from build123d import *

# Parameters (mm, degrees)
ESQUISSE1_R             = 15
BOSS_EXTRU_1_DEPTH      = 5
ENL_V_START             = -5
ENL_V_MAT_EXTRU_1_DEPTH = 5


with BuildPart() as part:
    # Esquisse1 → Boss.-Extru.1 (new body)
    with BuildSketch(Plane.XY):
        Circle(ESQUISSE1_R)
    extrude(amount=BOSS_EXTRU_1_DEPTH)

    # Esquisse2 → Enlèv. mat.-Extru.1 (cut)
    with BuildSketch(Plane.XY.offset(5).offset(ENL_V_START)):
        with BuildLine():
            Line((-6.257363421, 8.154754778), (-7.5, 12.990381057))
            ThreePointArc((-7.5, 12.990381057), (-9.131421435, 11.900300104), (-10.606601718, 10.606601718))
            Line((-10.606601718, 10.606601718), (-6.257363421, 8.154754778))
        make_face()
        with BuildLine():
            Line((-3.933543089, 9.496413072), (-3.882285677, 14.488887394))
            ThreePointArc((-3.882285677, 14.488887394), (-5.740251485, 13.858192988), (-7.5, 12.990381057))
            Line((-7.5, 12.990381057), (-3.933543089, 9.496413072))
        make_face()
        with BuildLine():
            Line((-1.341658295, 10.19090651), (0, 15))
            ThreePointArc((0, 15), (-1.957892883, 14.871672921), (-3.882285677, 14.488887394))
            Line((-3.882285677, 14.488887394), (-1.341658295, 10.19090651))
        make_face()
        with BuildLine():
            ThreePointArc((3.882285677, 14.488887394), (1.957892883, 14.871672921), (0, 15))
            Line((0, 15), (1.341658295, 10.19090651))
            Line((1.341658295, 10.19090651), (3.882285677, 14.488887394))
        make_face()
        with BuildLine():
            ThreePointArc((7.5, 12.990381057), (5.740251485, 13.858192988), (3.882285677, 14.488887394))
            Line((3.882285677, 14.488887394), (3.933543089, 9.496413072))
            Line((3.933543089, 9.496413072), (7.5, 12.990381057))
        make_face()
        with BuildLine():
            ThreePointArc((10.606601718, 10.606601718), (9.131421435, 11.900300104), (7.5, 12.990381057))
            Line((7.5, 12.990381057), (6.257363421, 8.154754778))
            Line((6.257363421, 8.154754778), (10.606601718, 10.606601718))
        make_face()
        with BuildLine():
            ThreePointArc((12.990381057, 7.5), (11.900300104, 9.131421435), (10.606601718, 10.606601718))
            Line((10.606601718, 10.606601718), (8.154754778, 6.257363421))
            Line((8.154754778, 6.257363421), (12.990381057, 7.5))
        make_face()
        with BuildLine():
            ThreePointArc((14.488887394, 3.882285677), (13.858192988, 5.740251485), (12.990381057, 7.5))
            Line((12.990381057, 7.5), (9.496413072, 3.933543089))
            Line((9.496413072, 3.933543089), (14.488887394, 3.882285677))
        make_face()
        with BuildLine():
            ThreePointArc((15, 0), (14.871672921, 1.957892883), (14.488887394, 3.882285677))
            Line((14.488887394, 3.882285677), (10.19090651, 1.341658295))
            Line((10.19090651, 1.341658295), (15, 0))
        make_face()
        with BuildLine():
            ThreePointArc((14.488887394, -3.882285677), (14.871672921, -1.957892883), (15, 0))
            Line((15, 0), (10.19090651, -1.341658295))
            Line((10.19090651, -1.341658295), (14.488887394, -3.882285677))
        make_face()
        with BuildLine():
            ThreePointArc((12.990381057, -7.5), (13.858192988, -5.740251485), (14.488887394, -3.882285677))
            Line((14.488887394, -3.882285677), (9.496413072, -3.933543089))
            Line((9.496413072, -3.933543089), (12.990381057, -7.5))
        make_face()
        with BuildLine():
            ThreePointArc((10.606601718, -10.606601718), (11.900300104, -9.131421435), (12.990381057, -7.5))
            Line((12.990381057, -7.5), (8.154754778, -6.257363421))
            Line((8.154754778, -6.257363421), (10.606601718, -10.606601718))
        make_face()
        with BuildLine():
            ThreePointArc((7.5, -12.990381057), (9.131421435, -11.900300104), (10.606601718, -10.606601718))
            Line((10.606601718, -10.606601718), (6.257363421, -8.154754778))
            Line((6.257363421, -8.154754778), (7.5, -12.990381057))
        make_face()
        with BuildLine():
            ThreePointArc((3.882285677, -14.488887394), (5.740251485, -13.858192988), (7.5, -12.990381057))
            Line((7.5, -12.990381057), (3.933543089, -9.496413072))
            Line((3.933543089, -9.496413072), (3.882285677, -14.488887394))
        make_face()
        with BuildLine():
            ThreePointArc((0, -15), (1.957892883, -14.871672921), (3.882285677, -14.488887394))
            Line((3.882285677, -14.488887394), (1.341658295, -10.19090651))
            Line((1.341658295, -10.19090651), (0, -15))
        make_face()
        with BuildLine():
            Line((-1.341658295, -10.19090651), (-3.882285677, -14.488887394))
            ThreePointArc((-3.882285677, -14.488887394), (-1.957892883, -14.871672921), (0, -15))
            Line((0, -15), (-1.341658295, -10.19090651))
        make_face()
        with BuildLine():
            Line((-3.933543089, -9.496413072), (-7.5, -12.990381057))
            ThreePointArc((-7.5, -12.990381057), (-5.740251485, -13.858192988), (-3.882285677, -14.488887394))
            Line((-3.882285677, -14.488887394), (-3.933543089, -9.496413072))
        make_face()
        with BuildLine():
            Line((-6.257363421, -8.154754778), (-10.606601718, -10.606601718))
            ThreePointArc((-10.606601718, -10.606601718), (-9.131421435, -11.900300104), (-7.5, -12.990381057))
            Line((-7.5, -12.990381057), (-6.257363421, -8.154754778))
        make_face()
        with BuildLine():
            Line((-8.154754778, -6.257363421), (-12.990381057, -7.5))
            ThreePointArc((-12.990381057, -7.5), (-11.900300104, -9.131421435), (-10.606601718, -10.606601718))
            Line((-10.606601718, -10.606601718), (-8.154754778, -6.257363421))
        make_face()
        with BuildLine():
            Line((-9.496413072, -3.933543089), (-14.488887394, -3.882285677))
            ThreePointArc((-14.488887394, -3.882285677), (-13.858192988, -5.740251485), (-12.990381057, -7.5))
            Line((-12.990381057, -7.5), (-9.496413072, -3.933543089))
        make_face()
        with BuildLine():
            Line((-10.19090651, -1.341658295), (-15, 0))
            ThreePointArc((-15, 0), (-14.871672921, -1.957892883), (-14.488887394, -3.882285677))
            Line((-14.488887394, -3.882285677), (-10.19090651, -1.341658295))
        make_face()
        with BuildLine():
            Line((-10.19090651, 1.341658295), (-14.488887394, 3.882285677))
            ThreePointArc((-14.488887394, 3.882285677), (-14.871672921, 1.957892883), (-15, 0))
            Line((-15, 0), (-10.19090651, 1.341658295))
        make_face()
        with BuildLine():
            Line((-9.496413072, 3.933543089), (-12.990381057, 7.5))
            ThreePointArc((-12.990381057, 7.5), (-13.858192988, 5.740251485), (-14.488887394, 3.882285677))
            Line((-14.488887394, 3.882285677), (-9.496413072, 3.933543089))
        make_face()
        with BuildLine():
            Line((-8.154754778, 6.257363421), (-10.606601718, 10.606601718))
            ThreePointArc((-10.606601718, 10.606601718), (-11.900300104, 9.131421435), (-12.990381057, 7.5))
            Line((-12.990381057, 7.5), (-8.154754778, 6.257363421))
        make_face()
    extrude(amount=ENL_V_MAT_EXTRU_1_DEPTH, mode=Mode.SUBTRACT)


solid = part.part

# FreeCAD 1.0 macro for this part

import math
import FreeCAD as App
import Part
import Sketcher
from FreeCAD import Vector
Q = App.Units.Quantity

doc = App.newDocument("Part")
params = doc.addObject("Spreadsheet::Sheet", "Params")
for row, (alias, value) in enumerate([
    ("sketch1_diameter", "30 mm"),
    ("pad1_length", "5 mm"),
    ("sketch2_radius", "15 mm"),
    ("pocket1_length", "5 mm"),
], start=1):
    params.set(f"A{row}", alias)
    params.set(f"B{row}", "=" + value)
    params.setAlias(f"B{row}", alias)

body = doc.addObject("PartDesign::Body", "Body")

sketch1 = body.newObject("Sketcher::SketchObject", "Sketch")
sketch1.AttachmentSupport = (doc.getObject("XY_Plane"), [""])
sketch1.MapMode = "FlatFace"
sketch1.addGeometry(Part.Circle(Vector(0, 0, 0), Vector(0, 0, 1), 15), False)
sketch1.addConstraint([
    Sketcher.Constraint("Coincident", 0, 3, -1, 1),
    Sketcher.Constraint("Diameter", 0, Q("30 mm")),
])
sketch1.setExpression("Constraints[1]", "Params.sketch1_diameter")
pad1 = body.newObject("PartDesign::Pad", "Pad")
pad1.Profile = sketch1
pad1.setExpression("Length", "Params.pad1_length")

sketch2 = body.newObject("Sketcher::SketchObject", "Sketch001")
sketch2.AttachmentSupport = (doc.getObject("XY_Plane"), [""])
sketch2.MapMode = "FlatFace"
sketch2.addGeometry([
    Part.LineSegment(Vector(-6.3, 8.2, 0), Vector(-7.5, 13, 0)),
    Part.ArcOfCircle(Part.Circle(Vector(0, 0, 0), Vector(0, 0, 1), 15), math.radians(120), math.radians(135)),
    Part.LineSegment(Vector(-10.6, 10.6, 0), Vector(-6.3, 8.2, 0)),
    Part.LineSegment(Vector(-3.9, 9.5, 0), Vector(-3.9, 14.5, 0)),
    Part.ArcOfCircle(Part.Circle(Vector(0, 0, 0), Vector(0, 0, 1), 15), math.radians(105), math.radians(120)),
    Part.LineSegment(Vector(-7.5, 13, 0), Vector(-3.9, 9.5, 0)),
    Part.LineSegment(Vector(-1.3, 10.2, 0), Vector(0, 15, 0)),
    Part.ArcOfCircle(Part.Circle(Vector(0, 0, 0), Vector(0, 0, 1), 15), math.radians(90), math.radians(105)),
    Part.LineSegment(Vector(-3.9, 14.5, 0), Vector(-1.3, 10.2, 0)),
    Part.ArcOfCircle(Part.Circle(Vector(0, 0, 0), Vector(0, 0, 1), 15), math.radians(75), math.radians(90)),
    Part.LineSegment(Vector(0, 15, 0), Vector(1.3, 10.2, 0)),
    Part.LineSegment(Vector(1.3, 10.2, 0), Vector(3.9, 14.5, 0)),
    Part.ArcOfCircle(Part.Circle(Vector(0, 0, 0), Vector(0, 0, 1), 15), math.radians(60), math.radians(75)),
    Part.LineSegment(Vector(3.9, 14.5, 0), Vector(3.9, 9.5, 0)),
    Part.LineSegment(Vector(3.9, 9.5, 0), Vector(7.5, 13, 0)),
    Part.ArcOfCircle(Part.Circle(Vector(0, 0, 0), Vector(0, 0, 1), 15), math.radians(45), math.radians(60)),
    Part.LineSegment(Vector(7.5, 13, 0), Vector(6.3, 8.2, 0)),
    Part.LineSegment(Vector(6.3, 8.2, 0), Vector(10.6, 10.6, 0)),
    Part.ArcOfCircle(Part.Circle(Vector(0, 0, 0), Vector(0, 0, 1), 15), math.radians(30), math.radians(45)),
    Part.LineSegment(Vector(10.6, 10.6, 0), Vector(8.2, 6.3, 0)),
    Part.LineSegment(Vector(8.2, 6.3, 0), Vector(13, 7.5, 0)),
    Part.ArcOfCircle(Part.Circle(Vector(0, 0, 0), Vector(0, 0, 1), 15), math.radians(15), math.radians(30)),
    Part.LineSegment(Vector(13, 7.5, 0), Vector(9.5, 3.9, 0)),
    Part.LineSegment(Vector(9.5, 3.9, 0), Vector(14.5, 3.9, 0)),
    Part.ArcOfCircle(Part.Circle(Vector(0, 0, 0), Vector(0, 0, 1), 15), math.radians(0), math.radians(15)),
    Part.LineSegment(Vector(14.5, 3.9, 0), Vector(10.2, 1.3, 0)),
    Part.LineSegment(Vector(10.2, 1.3, 0), Vector(15, 0, 0)),
    Part.ArcOfCircle(Part.Circle(Vector(0, 0, 0), Vector(0, 0, 1), 15), math.radians(-15), math.radians(0)),
    Part.LineSegment(Vector(15, 0, 0), Vector(10.2, -1.3, 0)),
    Part.LineSegment(Vector(10.2, -1.3, 0), Vector(14.5, -3.9, 0)),
    Part.ArcOfCircle(Part.Circle(Vector(0, 0, 0), Vector(0, 0, 1), 15), math.radians(-30), math.radians(-15)),
    Part.LineSegment(Vector(14.5, -3.9, 0), Vector(9.5, -3.9, 0)),
    Part.LineSegment(Vector(9.5, -3.9, 0), Vector(13, -7.5, 0)),
    Part.ArcOfCircle(Part.Circle(Vector(0, 0, 0), Vector(0, 0, 1), 15), math.radians(-45), math.radians(-30)),
    Part.LineSegment(Vector(13, -7.5, 0), Vector(8.2, -6.3, 0)),
    Part.LineSegment(Vector(8.2, -6.3, 0), Vector(10.6, -10.6, 0)),
    Part.ArcOfCircle(Part.Circle(Vector(0, 0, 0), Vector(0, 0, 1), 15), math.radians(-60), math.radians(-45)),
    Part.LineSegment(Vector(10.6, -10.6, 0), Vector(6.3, -8.2, 0)),
    Part.LineSegment(Vector(6.3, -8.2, 0), Vector(7.5, -13, 0)),
    Part.ArcOfCircle(Part.Circle(Vector(0, 0, 0), Vector(0, 0, 1), 15), math.radians(-75), math.radians(-60)),
    Part.LineSegment(Vector(7.5, -13, 0), Vector(3.9, -9.5, 0)),
    Part.LineSegment(Vector(3.9, -9.5, 0), Vector(3.9, -14.5, 0)),
    Part.ArcOfCircle(Part.Circle(Vector(0, 0, 0), Vector(0, 0, 1), 15), math.radians(-90), math.radians(-75)),
    Part.LineSegment(Vector(3.9, -14.5, 0), Vector(1.3, -10.2, 0)),
    Part.LineSegment(Vector(1.3, -10.2, 0), Vector(0, -15, 0)),
    Part.LineSegment(Vector(-1.3, -10.2, 0), Vector(-3.9, -14.5, 0)),
    Part.ArcOfCircle(Part.Circle(Vector(0, 0, 0), Vector(0, 0, 1), 15), math.radians(-105), math.radians(-90)),
    Part.LineSegment(Vector(0, -15, 0), Vector(-1.3, -10.2, 0)),
    Part.LineSegment(Vector(-3.9, -9.5, 0), Vector(-7.5, -13, 0)),
    Part.ArcOfCircle(Part.Circle(Vector(0, 0, 0), Vector(0, 0, 1), 15), math.radians(-120), math.radians(-105)),
    Part.LineSegment(Vector(-3.9, -14.5, 0), Vector(-3.9, -9.5, 0)),
    Part.LineSegment(Vector(-6.3, -8.2, 0), Vector(-10.6, -10.6, 0)),
    Part.ArcOfCircle(Part.Circle(Vector(0, 0, 0), Vector(0, 0, 1), 15), math.radians(-135), math.radians(-120)),
    Part.LineSegment(Vector(-7.5, -13, 0), Vector(-6.3, -8.2, 0)),
    Part.LineSegment(Vector(-8.2, -6.3, 0), Vector(-13, -7.5, 0)),
    Part.ArcOfCircle(Part.Circle(Vector(0, 0, 0), Vector(0, 0, 1), 15), math.radians(-150), math.radians(-135)),
    Part.LineSegment(Vector(-10.6, -10.6, 0), Vector(-8.2, -6.3, 0)),
    Part.LineSegment(Vector(-9.5, -3.9, 0), Vector(-14.5, -3.9, 0)),
    Part.ArcOfCircle(Part.Circle(Vector(0, 0, 0), Vector(0, 0, 1), 15), math.radians(-165), math.radians(-150)),
    Part.LineSegment(Vector(-13, -7.5, 0), Vector(-9.5, -3.9, 0)),
    Part.LineSegment(Vector(-10.2, -1.3, 0), Vector(-15, 0, 0)),
    Part.ArcOfCircle(Part.Circle(Vector(0, 0, 0), Vector(0, 0, 1), 15), math.radians(180), math.radians(195)),
    Part.LineSegment(Vector(-14.5, -3.9, 0), Vector(-10.2, -1.3, 0)),
    Part.LineSegment(Vector(-10.2, 1.3, 0), Vector(-14.5, 3.9, 0)),
    Part.ArcOfCircle(Part.Circle(Vector(0, 0, 0), Vector(0, 0, 1), 15), math.radians(165), math.radians(180)),
    Part.LineSegment(Vector(-15, 0, 0), Vector(-10.2, 1.3, 0)),
    Part.LineSegment(Vector(-9.5, 3.9, 0), Vector(-13, 7.5, 0)),
    Part.ArcOfCircle(Part.Circle(Vector(0, 0, 0), Vector(0, 0, 1), 15), math.radians(150), math.radians(165)),
    Part.LineSegment(Vector(-14.5, 3.9, 0), Vector(-9.5, 3.9, 0)),
    Part.LineSegment(Vector(-8.2, 6.3, 0), Vector(-10.6, 10.6, 0)),
    Part.ArcOfCircle(Part.Circle(Vector(0, 0, 0), Vector(0, 0, 1), 15), math.radians(135), math.radians(150)),
    Part.LineSegment(Vector(-13, 7.5, 0), Vector(-8.2, 6.3, 0)),
], False)
sketch2.addConstraint([
    Sketcher.Constraint("Coincident", 0, 2, 1, 1),
    Sketcher.Constraint("Coincident", 1, 2, 2, 1),
    Sketcher.Constraint("Coincident", 2, 2, 0, 1),
    Sketcher.Constraint("Coincident", 3, 2, 4, 1),
    Sketcher.Constraint("Coincident", 4, 2, 5, 1),
    Sketcher.Constraint("Coincident", 5, 2, 3, 1),
    Sketcher.Constraint("Coincident", 6, 2, 7, 1),
    Sketcher.Constraint("Coincident", 7, 2, 8, 1),
    Sketcher.Constraint("Coincident", 8, 2, 6, 1),
    Sketcher.Constraint("Coincident", 9, 2, 10, 1),
    Sketcher.Constraint("Coincident", 10, 2, 11, 1),
    Sketcher.Constraint("Coincident", 11, 2, 9, 1),
    Sketcher.Constraint("Coincident", 12, 2, 13, 1),
    Sketcher.Constraint("Coincident", 13, 2, 14, 1),
    Sketcher.Constraint("Coincident", 14, 2, 12, 1),
    Sketcher.Constraint("Coincident", 15, 2, 16, 1),
    Sketcher.Constraint("Coincident", 16, 2, 17, 1),
    Sketcher.Constraint("Coincident", 17, 2, 15, 1),
    Sketcher.Constraint("Coincident", 18, 2, 19, 1),
    Sketcher.Constraint("Coincident", 19, 2, 20, 1),
    Sketcher.Constraint("Coincident", 20, 2, 18, 1),
    Sketcher.Constraint("Coincident", 21, 2, 22, 1),
    Sketcher.Constraint("Coincident", 22, 2, 23, 1),
    Sketcher.Constraint("Coincident", 23, 2, 21, 1),
    Sketcher.Constraint("Coincident", 24, 2, 25, 1),
    Sketcher.Constraint("Coincident", 25, 2, 26, 1),
    Sketcher.Constraint("Coincident", 26, 2, 24, 1),
    Sketcher.Constraint("Coincident", 27, 2, 28, 1),
    Sketcher.Constraint("Coincident", 28, 2, 29, 1),
    Sketcher.Constraint("Coincident", 29, 2, 27, 1),
    Sketcher.Constraint("Coincident", 30, 2, 31, 1),
    Sketcher.Constraint("Coincident", 31, 2, 32, 1),
    Sketcher.Constraint("Coincident", 32, 2, 30, 1),
    Sketcher.Constraint("Coincident", 33, 2, 34, 1),
    Sketcher.Constraint("Coincident", 34, 2, 35, 1),
    Sketcher.Constraint("Coincident", 35, 2, 33, 1),
    Sketcher.Constraint("Coincident", 36, 2, 37, 1),
    Sketcher.Constraint("Coincident", 37, 2, 38, 1),
    Sketcher.Constraint("Coincident", 38, 2, 36, 1),
    Sketcher.Constraint("Coincident", 39, 2, 40, 1),
    Sketcher.Constraint("Coincident", 40, 2, 41, 1),
    Sketcher.Constraint("Coincident", 41, 2, 39, 1),
    Sketcher.Constraint("Coincident", 42, 2, 43, 1),
    Sketcher.Constraint("Coincident", 43, 2, 44, 1),
    Sketcher.Constraint("Coincident", 44, 2, 42, 1),
    Sketcher.Constraint("Coincident", 45, 2, 46, 1),
    Sketcher.Constraint("Coincident", 46, 2, 47, 1),
    Sketcher.Constraint("Coincident", 47, 2, 45, 1),
    Sketcher.Constraint("Coincident", 48, 2, 49, 1),
    Sketcher.Constraint("Coincident", 49, 2, 50, 1),
    Sketcher.Constraint("Coincident", 50, 2, 48, 1),
    Sketcher.Constraint("Coincident", 51, 2, 52, 1),
    Sketcher.Constraint("Coincident", 52, 2, 53, 1),
    Sketcher.Constraint("Coincident", 53, 2, 51, 1),
    Sketcher.Constraint("Coincident", 54, 2, 55, 1),
    Sketcher.Constraint("Coincident", 55, 2, 56, 1),
    Sketcher.Constraint("Coincident", 56, 2, 54, 1),
    Sketcher.Constraint("Coincident", 57, 2, 58, 1),
    Sketcher.Constraint("Coincident", 58, 2, 59, 1),
    Sketcher.Constraint("Coincident", 59, 2, 57, 1),
    Sketcher.Constraint("Coincident", 60, 2, 61, 1),
    Sketcher.Constraint("Coincident", 61, 2, 62, 1),
    Sketcher.Constraint("Coincident", 62, 2, 60, 1),
    Sketcher.Constraint("Coincident", 63, 2, 64, 1),
    Sketcher.Constraint("Coincident", 64, 2, 65, 1),
    Sketcher.Constraint("Coincident", 65, 2, 63, 1),
    Sketcher.Constraint("Coincident", 66, 2, 67, 1),
    Sketcher.Constraint("Coincident", 67, 2, 68, 1),
    Sketcher.Constraint("Coincident", 68, 2, 66, 1),
    Sketcher.Constraint("Coincident", 69, 2, 70, 1),
    Sketcher.Constraint("Coincident", 70, 2, 71, 1),
    Sketcher.Constraint("Coincident", 71, 2, 69, 1),
    Sketcher.Constraint("Coincident", 1, 3, -1, 1),
    Sketcher.Constraint("Coincident", 4, 3, -1, 1),
    Sketcher.Constraint("Coincident", 7, 3, -1, 1),
    Sketcher.Constraint("Coincident", 9, 3, -1, 1),
    Sketcher.Constraint("Coincident", 12, 3, -1, 1),
    Sketcher.Constraint("Coincident", 15, 3, -1, 1),
    Sketcher.Constraint("Coincident", 18, 3, -1, 1),
    Sketcher.Constraint("Coincident", 21, 3, -1, 1),
    Sketcher.Constraint("Coincident", 24, 3, -1, 1),
    Sketcher.Constraint("Coincident", 27, 3, -1, 1),
    Sketcher.Constraint("Coincident", 30, 3, -1, 1),
    Sketcher.Constraint("Coincident", 33, 3, -1, 1),
    Sketcher.Constraint("Coincident", 36, 3, -1, 1),
    Sketcher.Constraint("Coincident", 39, 3, -1, 1),
    Sketcher.Constraint("Coincident", 42, 3, -1, 1),
    Sketcher.Constraint("Coincident", 46, 3, -1, 1),
    Sketcher.Constraint("Coincident", 49, 3, -1, 1),
    Sketcher.Constraint("Coincident", 52, 3, -1, 1),
    Sketcher.Constraint("Coincident", 55, 3, -1, 1),
    Sketcher.Constraint("Coincident", 58, 3, -1, 1),
    Sketcher.Constraint("Coincident", 61, 3, -1, 1),
    Sketcher.Constraint("Coincident", 64, 3, -1, 1),
    Sketcher.Constraint("Coincident", 67, 3, -1, 1),
    Sketcher.Constraint("Coincident", 70, 3, -1, 1),
    Sketcher.Constraint("Coincident", 4, 2, 0, 2),
    Sketcher.Constraint("Coincident", 7, 2, 3, 2),
    Sketcher.Constraint("Coincident", 9, 2, 6, 2),
    Sketcher.Constraint("Coincident", 12, 2, 11, 2),
    Sketcher.Constraint("Coincident", 15, 2, 14, 2),
    Sketcher.Constraint("Coincident", 18, 2, 17, 2),
    Sketcher.Constraint("Coincident", 21, 2, 20, 2),
    Sketcher.Constraint("Coincident", 24, 2, 23, 2),
    Sketcher.Constraint("Coincident", 27, 2, 26, 2),
    Sketcher.Constraint("Coincident", 30, 2, 29, 2),
    Sketcher.Constraint("Coincident", 33, 2, 32, 2),
    Sketcher.Constraint("Coincident", 36, 2, 35, 2),
    Sketcher.Constraint("Coincident", 39, 2, 38, 2),
    Sketcher.Constraint("Coincident", 42, 2, 41, 2),
    Sketcher.Constraint("Coincident", 46, 2, 44, 2),
    Sketcher.Constraint("Coincident", 49, 2, 45, 2),
    Sketcher.Constraint("Coincident", 52, 2, 48, 2),
    Sketcher.Constraint("Coincident", 55, 2, 51, 2),
    Sketcher.Constraint("Coincident", 58, 2, 54, 2),
    Sketcher.Constraint("Coincident", 61, 2, 57, 2),
    Sketcher.Constraint("Coincident", 64, 2, 60, 2),
    Sketcher.Constraint("Coincident", 67, 2, 63, 2),
    Sketcher.Constraint("Coincident", 69, 2, 1, 2),
    Sketcher.Constraint("Symmetric", 2, 2, 37, 2, -1, 1),
    Sketcher.Constraint("Symmetric", 5, 2, 40, 2, -1, 1),
    Sketcher.Constraint("Symmetric", 8, 2, 43, 2, -1, 1),
    Sketcher.Constraint("Symmetric", 10, 2, 47, 2, -1, 1),
    Sketcher.Constraint("Symmetric", 13, 2, 50, 2, -1, 1),
    Sketcher.Constraint("Symmetric", 16, 2, 53, 2, -1, 1),
    Sketcher.Constraint("Symmetric", 19, 2, 56, 2, -1, 1),
    Sketcher.Constraint("Symmetric", 22, 2, 59, 2, -1, 1),
    Sketcher.Constraint("Symmetric", 25, 2, 62, 2, -1, 1),
    Sketcher.Constraint("Symmetric", 28, 2, 65, 2, -1, 1),
    Sketcher.Constraint("Symmetric", 31, 2, 68, 2, -1, 1),
    Sketcher.Constraint("Symmetric", 34, 2, 71, 2, -1, 1),
    Sketcher.Constraint("Symmetric", 8, 2, 10, 2, -2),
    Sketcher.Constraint("Symmetric", 5, 2, 13, 2, -2),
    Sketcher.Constraint("Symmetric", 2, 2, 16, 2, -2),
    Sketcher.Constraint("Symmetric", 34, 2, 56, 2, -2),
    Sketcher.Constraint("Symmetric", 31, 2, 59, 2, -2),
    Sketcher.Constraint("Symmetric", 28, 2, 62, 2, -2),
    Sketcher.Constraint("PointOnObject", 6, 2, -2),
    Sketcher.Constraint("PointOnObject", 26, 2, -1),
    Sketcher.Constraint("PointOnObject", 44, 2, -2),
    Sketcher.Constraint("PointOnObject", 60, 2, -1),
    Sketcher.Constraint("Perpendicular", 2, 19),
    Sketcher.Constraint("Perpendicular", 0, 20),
    Sketcher.Constraint("Perpendicular", 5, 22),
    Sketcher.Constraint("Perpendicular", 3, 23),
    Sketcher.Constraint("Perpendicular", 8, 25),
    Sketcher.Constraint("Perpendicular", 6, 26),
    Sketcher.Constraint("Perpendicular", 11, 29),
    Sketcher.Constraint("Perpendicular", 14, 32),
    Sketcher.Constraint("Perpendicular", 17, 35),
    Sketcher.Constraint("Perpendicular", 20, 38),
    Sketcher.Constraint("Perpendicular", 23, 41),
    Sketcher.Constraint("Perpendicular", 29, 45),
    Sketcher.Constraint("Perpendicular", 32, 48),
    Sketcher.Constraint("Perpendicular", 35, 51),
    Sketcher.Constraint("Perpendicular", 38, 54),
    Sketcher.Constraint("Perpendicular", 41, 57),
    Sketcher.Constraint("Perpendicular", 45, 63),
    Sketcher.Constraint("Perpendicular", 48, 66),
    Sketcher.Constraint("Perpendicular", 53, 71),
    Sketcher.Constraint("Horizontal", 7, 2, 11, 2),
    Sketcher.Constraint("Horizontal", 4, 2, 14, 2),
    Sketcher.Constraint("Horizontal", 1, 2, 17, 2),
    Sketcher.Constraint("Equal", 0, 2),
    Sketcher.Constraint("Equal", 2, 3),
    Sketcher.Constraint("Equal", 3, 5),
    Sketcher.Constraint("Equal", 5, 6),
    Sketcher.Constraint("Equal", 6, 8),
    Sketcher.Constraint("Equal", 17, 19),
    Sketcher.Constraint("Equal", 19, 20),
    Sketcher.Constraint("Equal", 20, 22),
    Sketcher.Constraint("Radius", 1, Q("15 mm")),
    Sketcher.Constraint("DistanceX", 0, 2, -1, 1, Q("7.5 mm")),
    Sketcher.Constraint("DistanceX", 8, 2, -1, 1, Q("1.341658 mm")),
    Sketcher.Constraint("Distance", 0, Q("4.992737 mm")),
])
sketch2.setExpression("Constraints[171]", "Params.sketch2_radius")
pocket1 = body.newObject("PartDesign::Pocket", "Pocket")
pocket1.Profile = sketch2
pocket1.setExpression("Length", "Params.pocket1_length")
pocket1.Reversed = True

doc.recompute()
